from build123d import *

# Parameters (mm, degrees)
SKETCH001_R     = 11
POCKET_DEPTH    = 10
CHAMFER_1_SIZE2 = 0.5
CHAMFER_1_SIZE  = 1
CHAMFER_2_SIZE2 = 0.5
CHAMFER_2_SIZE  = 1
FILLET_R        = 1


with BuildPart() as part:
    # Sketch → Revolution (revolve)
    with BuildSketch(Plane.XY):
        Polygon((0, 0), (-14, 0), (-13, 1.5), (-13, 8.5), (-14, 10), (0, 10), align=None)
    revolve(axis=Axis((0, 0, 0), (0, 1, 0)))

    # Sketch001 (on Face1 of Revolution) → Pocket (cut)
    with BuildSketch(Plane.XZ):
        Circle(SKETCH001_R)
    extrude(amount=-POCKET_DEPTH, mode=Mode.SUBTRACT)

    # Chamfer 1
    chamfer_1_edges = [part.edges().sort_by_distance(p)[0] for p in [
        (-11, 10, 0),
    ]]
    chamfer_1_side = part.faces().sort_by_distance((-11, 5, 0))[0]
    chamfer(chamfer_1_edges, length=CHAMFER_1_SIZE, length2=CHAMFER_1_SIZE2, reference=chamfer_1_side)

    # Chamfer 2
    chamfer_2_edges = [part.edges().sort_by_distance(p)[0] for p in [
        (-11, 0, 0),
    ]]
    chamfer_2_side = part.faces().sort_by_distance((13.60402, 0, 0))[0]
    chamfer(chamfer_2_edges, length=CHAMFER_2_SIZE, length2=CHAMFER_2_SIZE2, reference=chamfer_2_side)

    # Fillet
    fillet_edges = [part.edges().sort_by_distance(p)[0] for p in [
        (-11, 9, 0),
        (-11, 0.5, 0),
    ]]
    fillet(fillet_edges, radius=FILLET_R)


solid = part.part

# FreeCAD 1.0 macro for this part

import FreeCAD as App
import Part
import Sketcher
Q = App.Units.Quantity


def edges_at(feature, points):
    """Names of the edges that pass closest to the given points."""
    edges = feature.Shape.Edges
    near = lambda p: min(range(len(edges)), key=lambda i: edges[i].distToShape(Part.Vertex(*p))[0])
    return sorted({f"Edge{near(p) + 1}" for p in points})

doc = App.newDocument("Part")
params = doc.addObject("Spreadsheet::Sheet", "Params")
for row, (alias, value) in enumerate([
    ("sketch1_width", "14 mm"),
    ("sketch1_height", "10 mm"),
    ("sketch1_height2", "7 mm"),
    ("revolution_angle", "360 deg"),
    ("sketch2_diameter", "22 mm"),
    ("pocket1_length", "10 mm"),
    ("chamfer_size", "1 mm"),
    ("chamfer_size2", "0.5 mm"),
    ("chamfer2_size", "1 mm"),
    ("chamfer2_size2", "0.5 mm"),
    ("fillet_radius", "1 mm"),
], start=1):
    params.set(f"A{row}", alias)
    params.set(f"B{row}", "=" + value)
    params.setAlias(f"B{row}", alias)

body = doc.addObject("PartDesign::Body", "Body")

sketch1 = doc.addObject("Sketcher::SketchObject", "Sketch")
body.addObject(sketch1)
sketch1.AttachmentSupport = (doc.XY_Plane, [""])
sketch1.MapMode = "FlatFace"
sketch1.addGeometry([
    Part.LineSegment(App.Vector(-14, 0, 0), App.Vector(0, 0, 0)),
    Part.LineSegment(App.Vector(0, 0, 0), App.Vector(0, 10, 0)),
    Part.LineSegment(App.Vector(0, 10, 0), App.Vector(-14, 10, 0)),
    Part.LineSegment(App.Vector(-14, 10, 0), App.Vector(-13, 8.5, 0)),
    Part.LineSegment(App.Vector(-13, 8.5, 0), App.Vector(-13, 1.5, 0)),
    Part.LineSegment(App.Vector(-13, 1.5, 0), App.Vector(-14, 0, 0)),
], False)
sketch1.addConstraint([
    Sketcher.Constraint("Coincident", 0, 2, 1, 1),
    Sketcher.Constraint("Coincident", 1, 2, 2, 1),
    Sketcher.Constraint("Coincident", 2, 2, 3, 1),
    Sketcher.Constraint("Coincident", 3, 2, 4, 1),
    Sketcher.Constraint("Coincident", 4, 2, 5, 1),
    Sketcher.Constraint("Coincident", 5, 2, 0, 1),
    Sketcher.Constraint("Horizontal", 0),
    Sketcher.Constraint("Vertical", 1),
    Sketcher.Constraint("Horizontal", 2),
    Sketcher.Constraint("Vertical", 4),
    Sketcher.Constraint("Coincident", 0, 2, -1, 1),
    Sketcher.Constraint("Vertical", 2, 2, 5, 2),
    Sketcher.Constraint("Equal", 3, 5),
    Sketcher.Constraint("DistanceX", 0, 1, 0, 2, Q("14 mm")),
    Sketcher.Constraint("DistanceY", 1, 1, 1, 2, Q("10 mm")),
    Sketcher.Constraint("DistanceY", 4, 2, 4, 1, Q("7 mm")),
    Sketcher.Constraint("DistanceX", 3, 2, -1, 1, Q("13 mm")),
])
sketch1.setExpression("Constraints[13]", "Params.sketch1_width")
sketch1.setExpression("Constraints[14]", "Params.sketch1_height")
sketch1.setExpression("Constraints[15]", "Params.sketch1_height2")
revolution = doc.addObject("PartDesign::Revolution", "Revolution")
body.addObject(revolution)
revolution.Profile = sketch1
revolution.ReferenceAxis = (sketch1, ["V_Axis"])
revolution.setExpression("Angle", "Params.revolution_angle")

sketch2 = doc.addObject("Sketcher::SketchObject", "Sketch001")
body.addObject(sketch2)
sketch2.AttachmentSupport = (doc.XZ_Plane, [""])
sketch2.MapMode = "FlatFace"
sketch2.addGeometry(Part.Circle(App.Vector(0, 0, 0), App.Vector(0, 0, 1), 11), False)
sketch2.addConstraint([
    Sketcher.Constraint("Coincident", 0, 3, -1, 1),
    Sketcher.Constraint("Diameter", 0, Q("22 mm")),
])
sketch2.setExpression("Constraints[1]", "Params.sketch2_diameter")
pocket1 = doc.addObject("PartDesign::Pocket", "Pocket")
body.addObject(pocket1)
pocket1.Profile = sketch2
pocket1.setExpression("Length", "Params.pocket1_length")
doc.recompute()

chamfer = doc.addObject("PartDesign::Chamfer", "Chamfer")
body.addObject(chamfer)
chamfer.Base = (pocket1, edges_at(pocket1, [(-11, 10, 0)]))
chamfer.ChamferType = "Two distances"
chamfer.setExpression("Size", "Params.chamfer_size")
chamfer.setExpression("Size2", "Params.chamfer_size2")
doc.recompute()

chamfer2 = doc.addObject("PartDesign::Chamfer", "Chamfer001")
body.addObject(chamfer2)
chamfer2.Base = (chamfer, edges_at(chamfer, [(-11, 0, 0)]))
chamfer2.ChamferType = "Two distances"
chamfer2.setExpression("Size", "Params.chamfer2_size")
chamfer2.setExpression("Size2", "Params.chamfer2_size2")
chamfer2.FlipDirection = True
doc.recompute()

fillet = doc.addObject("PartDesign::Fillet", "Fillet")
body.addObject(fillet)
fillet.Base = (chamfer2, edges_at(chamfer2, [(-11, 9, 0), (-11, 0.5, 0)]))
fillet.setExpression("Radius", "Params.fillet_radius")

doc.recompute()
